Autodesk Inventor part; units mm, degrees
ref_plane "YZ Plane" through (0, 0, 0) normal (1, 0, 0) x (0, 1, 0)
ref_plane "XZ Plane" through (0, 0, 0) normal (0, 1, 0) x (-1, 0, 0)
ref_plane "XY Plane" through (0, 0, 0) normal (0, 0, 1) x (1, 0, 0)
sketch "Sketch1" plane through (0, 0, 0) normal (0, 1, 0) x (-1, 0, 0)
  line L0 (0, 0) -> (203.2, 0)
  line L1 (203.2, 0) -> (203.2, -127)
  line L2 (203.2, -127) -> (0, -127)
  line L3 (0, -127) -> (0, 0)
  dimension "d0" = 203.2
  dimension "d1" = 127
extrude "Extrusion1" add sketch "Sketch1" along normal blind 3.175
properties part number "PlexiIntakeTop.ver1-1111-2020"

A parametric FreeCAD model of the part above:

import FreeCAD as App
import Part
import Sketcher

V = App.Vector
Q = App.Units.Quantity


def add_polygon(sketch, points):
    """Adds a closed chain of lines whose ends are joined by coincident constraints."""
    first, n = sketch.GeometryCount, len(points)
    for a, b in zip(points, points[1:] + points[:1]):
        sketch.addGeometry(Part.LineSegment(App.Vector(*a, 0), App.Vector(*b, 0)), False)
    for i in range(n):
        sketch.addConstraint(Sketcher.Constraint("Coincident", first + i, 2, first + (i + 1) % n, 1))

doc = App.newDocument("Part")
body = doc.addObject("PartDesign::Body", "Body")

# Sketch on XZ plane
sketch1 = doc.addObject("Sketcher::SketchObject", "Sketch")
body.addObject(sketch1)
sketch1.AttachmentSupport = (doc.XZ_Plane, [""])
sketch1.MapMode = "FlatFace"
add_polygon(sketch1, [(-203, 0), (0, 0), (0, -127), (-203, -127)])  # lines 0-3
sketch1.addConstraint([
    Sketcher.Constraint("Horizontal", 0),
    Sketcher.Constraint("Vertical", 1),
    Sketcher.Constraint("Horizontal", 2),
    Sketcher.Constraint("Vertical", 3),
    Sketcher.Constraint("Coincident", 0, 2, -1, 1),
    Sketcher.Constraint("DistanceX", 0, 1, 0, 2, Q("8 in")),
    Sketcher.Constraint("DistanceY", 1, 2, 1, 1, Q("5 in")),
])
pad1 = doc.addObject("PartDesign::Pad", "Pad")
body.addObject(pad1)
pad1.Profile = sketch1
pad1.Length = Q("0.125 in")
pad1.Reversed = True

doc.recompute()
